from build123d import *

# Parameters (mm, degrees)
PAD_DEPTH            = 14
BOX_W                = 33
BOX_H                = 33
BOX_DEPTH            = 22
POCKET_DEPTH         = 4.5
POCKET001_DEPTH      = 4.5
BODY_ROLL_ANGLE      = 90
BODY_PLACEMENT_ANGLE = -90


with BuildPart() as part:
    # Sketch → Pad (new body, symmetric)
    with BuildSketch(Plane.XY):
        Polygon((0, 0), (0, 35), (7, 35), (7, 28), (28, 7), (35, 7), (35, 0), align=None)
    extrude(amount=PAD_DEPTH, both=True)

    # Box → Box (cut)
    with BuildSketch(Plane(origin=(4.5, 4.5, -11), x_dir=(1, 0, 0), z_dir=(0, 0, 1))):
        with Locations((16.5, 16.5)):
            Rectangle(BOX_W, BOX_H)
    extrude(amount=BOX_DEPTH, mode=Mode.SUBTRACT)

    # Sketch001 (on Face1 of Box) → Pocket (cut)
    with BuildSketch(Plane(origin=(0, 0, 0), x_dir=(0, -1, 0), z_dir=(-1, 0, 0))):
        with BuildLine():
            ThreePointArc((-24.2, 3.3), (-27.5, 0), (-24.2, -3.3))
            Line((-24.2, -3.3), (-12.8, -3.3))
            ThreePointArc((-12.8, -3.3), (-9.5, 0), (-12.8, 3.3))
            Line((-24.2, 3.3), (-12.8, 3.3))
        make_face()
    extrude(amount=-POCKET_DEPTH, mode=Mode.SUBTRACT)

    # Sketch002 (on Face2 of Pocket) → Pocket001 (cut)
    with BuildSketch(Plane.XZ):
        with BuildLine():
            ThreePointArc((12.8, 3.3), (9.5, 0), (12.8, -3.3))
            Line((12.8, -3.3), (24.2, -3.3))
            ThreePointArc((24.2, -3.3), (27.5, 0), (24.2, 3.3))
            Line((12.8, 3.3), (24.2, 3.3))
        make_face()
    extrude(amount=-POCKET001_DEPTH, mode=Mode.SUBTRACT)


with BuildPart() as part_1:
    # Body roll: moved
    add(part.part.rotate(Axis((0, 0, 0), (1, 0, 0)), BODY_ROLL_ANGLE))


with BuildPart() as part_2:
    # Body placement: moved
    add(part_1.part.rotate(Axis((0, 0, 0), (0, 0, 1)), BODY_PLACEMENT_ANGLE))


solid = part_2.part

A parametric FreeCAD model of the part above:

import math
import FreeCAD as App
import Part
import Sketcher

doc = App.newDocument("Part")
params = doc.addObject("Spreadsheet::Sheet", "Params")
for row, (alias, value) in enumerate([
    ("sketch1_width", "35 mm"),
    ("sketch1_width2", "7 mm"),
    ("pad1_length", "28 mm"),
    ("sketch2_width", "33 mm"),
    ("pocket1_length", "22 mm"),
    ("sketch3_radius", "3.3 mm"),
    ("sketch3_width", "11.4 mm"),
    ("pocket2_length", "4.5 mm"),
    ("sketch4_radius", "3.3 mm"),
    ("sketch4_width", "11.4 mm"),
    ("pocket3_length", "4.5 mm"),
], start=1):
    params.set(f"A{row}", alias)
    params.set(f"B{row}", "=" + value)
    params.setAlias(f"B{row}", alias)

body = doc.addObject("PartDesign::Body", "Body")

# Sketch on XY plane
sketch1 = doc.addObject("Sketcher::SketchObject", "Sketch")
body.addObject(sketch1)
sketch1.AttachmentSupport = (doc.XY_Plane, [""])
sketch1.MapMode = "FlatFace"
sketch1.addGeometry(Part.LineSegment(App.Vector(0, 35, 0), App.Vector(0, 0, 0)), False)
sketch1.addGeometry(Part.LineSegment(App.Vector(0, 0, 0), App.Vector(35, 0, 0)), False)
sketch1.addGeometry(Part.LineSegment(App.Vector(35, 0, 0), App.Vector(35, 7, 0)), False)
sketch1.addGeometry(Part.LineSegment(App.Vector(35, 7, 0), App.Vector(28, 7, 0)), False)
sketch1.addGeometry(Part.LineSegment(App.Vector(28, 7, 0), App.Vector(7, 28, 0)), False)
sketch1.addGeometry(Part.LineSegment(App.Vector(7, 28, 0), App.Vector(7, 35, 0)), False)
sketch1.addGeometry(Part.LineSegment(App.Vector(7, 35, 0), App.Vector(0, 35, 0)), False)
sketch1.addConstraint(Sketcher.Constraint("Coincident", 0, 2, 1, 1))
sketch1.addConstraint(Sketcher.Constraint("Coincident", 1, 2, 2, 1))
sketch1.addConstraint(Sketcher.Constraint("Coincident", 2, 2, 3, 1))
sketch1.addConstraint(Sketcher.Constraint("Coincident", 3, 2, 4, 1))
sketch1.addConstraint(Sketcher.Constraint("Coincident", 4, 2, 5, 1))
sketch1.addConstraint(Sketcher.Constraint("Coincident", 5, 2, 6, 1))
sketch1.addConstraint(Sketcher.Constraint("Coincident", 6, 2, 0, 1))
sketch1.addConstraint(Sketcher.Constraint("Vertical", 0))
sketch1.addConstraint(Sketcher.Constraint("Horizontal", 1))
sketch1.addConstraint(Sketcher.Constraint("Vertical", 2))
sketch1.addConstraint(Sketcher.Constraint("Horizontal", 3))
sketch1.addConstraint(Sketcher.Constraint("Vertical", 5))
sketch1.addConstraint(Sketcher.Constraint("Horizontal", 6))
sketch1.addConstraint(Sketcher.Constraint("Coincident", 0, 2, -1, 1))
sketch1.addConstraint(Sketcher.Constraint("Equal", 3, 6))
sketch1.addConstraint(Sketcher.Constraint("Equal", 1, 0))
sketch1.addConstraint(Sketcher.Constraint("Equal", 6, 2))
sketch1.addConstraint(Sketcher.Constraint("Equal", 2, 5))
sketch1.addConstraint(Sketcher.Constraint("DistanceX", 1, 1, 1, 2, 35.0))
sketch1.addConstraint(Sketcher.Constraint("DistanceX", 3, 2, 3, 1, 7.0))
sketch1.setExpression("Constraints[18]", "Params.sketch1_width")
sketch1.setExpression("Constraints[19]", "Params.sketch1_width2")
pad1 = doc.addObject("PartDesign::Pad", "Pad")
body.addObject(pad1)
pad1.Profile = sketch1
pad1.setExpression("Length", "Params.pad1_length")
pad1.Midplane = True

# Sketch on XY plane
sketch2 = doc.addObject("Sketcher::SketchObject", "Sketch001")
body.addObject(sketch2)
sketch2.AttachmentSupport = (doc.XY_Plane, [""])
sketch2.MapMode = "FlatFace"
sketch2.AttachmentOffset = App.Placement(App.Vector(0, 0, -11), App.Rotation())
sketch2.addGeometry(Part.LineSegment(App.Vector(4, 38, 0), App.Vector(4, 4, 0)), False)
sketch2.addGeometry(Part.LineSegment(App.Vector(4, 4, 0), App.Vector(38, 4, 0)), False)
sketch2.addGeometry(Part.LineSegment(App.Vector(38, 4, 0), App.Vector(38, 38, 0)), False)
sketch2.addGeometry(Part.LineSegment(App.Vector(38, 38, 0), App.Vector(4, 38, 0)), False)
sketch2.addConstraint(Sketcher.Constraint("Coincident", 0, 2, 1, 1))
sketch2.addConstraint(Sketcher.Constraint("Coincident", 1, 2, 2, 1))
sketch2.addConstraint(Sketcher.Constraint("Coincident", 2, 2, 3, 1))
sketch2.addConstraint(Sketcher.Constraint("Coincident", 3, 2, 0, 1))
sketch2.addConstraint(Sketcher.Constraint("Vertical", 0))
sketch2.addConstraint(Sketcher.Constraint("Horizontal", 1))
sketch2.addConstraint(Sketcher.Constraint("Vertical", 2))
sketch2.addConstraint(Sketcher.Constraint("Horizontal", 3))
sketch2.addConstraint(Sketcher.Constraint("Equal", 3, 0))
sketch2.addConstraint(Sketcher.Constraint("DistanceX", 1, 1, 1, 2, 33.0))
sketch2.addConstraint(Sketcher.Constraint("DistanceX", -1, 1, 0, 2, 4.5))
sketch2.addConstraint(Sketcher.Constraint("DistanceY", -1, 1, 0, 2, 4.5))
sketch2.setExpression("Constraints[9]", "Params.sketch2_width")
pocket1 = doc.addObject("PartDesign::Pocket", "Pocket")
body.addObject(pocket1)
pocket1.Profile = sketch2
pocket1.setExpression("Length", "Params.pocket1_length")
pocket1.Reversed = True

# Sketch on YZ plane
sketch3 = doc.addObject("Sketcher::SketchObject", "Sketch002")
body.addObject(sketch3)
sketch3.AttachmentSupport = (doc.YZ_Plane, [""])
sketch3.MapMode = "FlatFace"
sketch3.addGeometry(Part.ArcOfCircle(Part.Circle(App.Vector(24.2, 0, 0), App.Vector(0, 0, 1), 3.3), math.radians(-90), math.radians(90)), False)
sketch3.addGeometry(Part.LineSegment(App.Vector(24.2, -3.3, 0), App.Vector(12.8, -3.3, 0)), False)
sketch3.addGeometry(Part.ArcOfCircle(Part.Circle(App.Vector(12.8, 0, 0), App.Vector(0, 0, 1), 3.3), math.radians(90), math.radians(270)), False)
sketch3.addGeometry(Part.LineSegment(App.Vector(12.8, 3.3, 0), App.Vector(24.2, 3.3, 0)), False)
sketch3.addConstraint(Sketcher.Constraint("Tangent", 0, 1, 1, 1))
sketch3.addConstraint(Sketcher.Constraint("Tangent", 1, 2, 2, 2))
sketch3.addConstraint(Sketcher.Constraint("Tangent", 2, 1, 3, 1))
sketch3.addConstraint(Sketcher.Constraint("Tangent", 3, 2, 0, 2))
sketch3.addConstraint(Sketcher.Constraint("Horizontal", 1))
sketch3.addConstraint(Sketcher.Constraint("Horizontal", 3))
sketch3.addConstraint(Sketcher.Constraint("PointOnObject", 0, 3, -1))
sketch3.addConstraint(Sketcher.Constraint("Radius", 0, 3.3))
sketch3.addConstraint(Sketcher.Constraint("DistanceX", 1, 2, 1, 1, 11.4))
sketch3.addConstraint(Sketcher.Constraint("DistanceX", -1, 1, 0, 3, 24.2))
sketch3.setExpression("Constraints[7]", "Params.sketch3_radius")
sketch3.setExpression("Constraints[8]", "Params.sketch3_width")
pocket2 = doc.addObject("PartDesign::Pocket", "Pocket001")
body.addObject(pocket2)
pocket2.Profile = sketch3
pocket2.setExpression("Length", "Params.pocket2_length")
pocket2.Reversed = True

# Sketch on XZ plane
sketch4 = doc.addObject("Sketcher::SketchObject", "Sketch003")
body.addObject(sketch4)
sketch4.AttachmentSupport = (doc.XZ_Plane, [""])
sketch4.MapMode = "FlatFace"
sketch4.addGeometry(Part.ArcOfCircle(Part.Circle(App.Vector(12.8, 0, 0), App.Vector(0, 0, 1), 3.3), math.radians(90), math.radians(270)), False)
sketch4.addGeometry(Part.LineSegment(App.Vector(12.8, -3.3, 0), App.Vector(24.2, -3.3, 0)), False)
sketch4.addGeometry(Part.ArcOfCircle(Part.Circle(App.Vector(24.2, 0, 0), App.Vector(0, 0, 1), 3.3), math.radians(-90), math.radians(90)), False)
sketch4.addGeometry(Part.LineSegment(App.Vector(24.2, 3.3, 0), App.Vector(12.8, 3.3, 0)), False)
sketch4.addConstraint(Sketcher.Constraint("Tangent", 0, 2, 1, 1))
sketch4.addConstraint(Sketcher.Constraint("Tangent", 1, 2, 2, 1))
sketch4.addConstraint(Sketcher.Constraint("Tangent", 2, 2, 3, 1))
sketch4.addConstraint(Sketcher.Constraint("Tangent", 3, 2, 0, 1))
sketch4.addConstraint(Sketcher.Constraint("Horizontal", 1))
sketch4.addConstraint(Sketcher.Constraint("Horizontal", 3))
sketch4.addConstraint(Sketcher.Constraint("PointOnObject", 0, 3, -1))
sketch4.addConstraint(Sketcher.Constraint("Radius", 0, 3.3))
sketch4.addConstraint(Sketcher.Constraint("DistanceX", 1, 1, 1, 2, 11.4))
sketch4.addConstraint(Sketcher.Constraint("DistanceX", -1, 1, 0, 3, 12.8))
sketch4.setExpression("Constraints[7]", "Params.sketch4_radius")
sketch4.setExpression("Constraints[8]", "Params.sketch4_width")
pocket3 = doc.addObject("PartDesign::Pocket", "Pocket002")
body.addObject(pocket3)
pocket3.Profile = sketch4
pocket3.setExpression("Length", "Params.pocket3_length")
body2 = doc.addObject("PartDesign::Body", "Body001")
doc.recompute()

body.Placement = App.Placement(App.Vector(0, 0, 0), App.Rotation(App.Vector(1, 0, 0), 90))
boolean = doc.addObject("PartDesign::Boolean", "Boolean")
body2.addObject(boolean)
boolean.Type = "Fuse"
boolean.addObjects([body])
body3 = doc.addObject("PartDesign::Body", "Body002")
doc.recompute()

body2.Placement = App.Placement(App.Vector(0, 0, 0), App.Rotation(App.Vector(0, 0, 1), 270))
boolean2 = doc.addObject("PartDesign::Boolean", "Boolean001")
body3.addObject(boolean2)
boolean2.Type = "Fuse"
boolean2.addObjects([body2])

doc.recompute()
